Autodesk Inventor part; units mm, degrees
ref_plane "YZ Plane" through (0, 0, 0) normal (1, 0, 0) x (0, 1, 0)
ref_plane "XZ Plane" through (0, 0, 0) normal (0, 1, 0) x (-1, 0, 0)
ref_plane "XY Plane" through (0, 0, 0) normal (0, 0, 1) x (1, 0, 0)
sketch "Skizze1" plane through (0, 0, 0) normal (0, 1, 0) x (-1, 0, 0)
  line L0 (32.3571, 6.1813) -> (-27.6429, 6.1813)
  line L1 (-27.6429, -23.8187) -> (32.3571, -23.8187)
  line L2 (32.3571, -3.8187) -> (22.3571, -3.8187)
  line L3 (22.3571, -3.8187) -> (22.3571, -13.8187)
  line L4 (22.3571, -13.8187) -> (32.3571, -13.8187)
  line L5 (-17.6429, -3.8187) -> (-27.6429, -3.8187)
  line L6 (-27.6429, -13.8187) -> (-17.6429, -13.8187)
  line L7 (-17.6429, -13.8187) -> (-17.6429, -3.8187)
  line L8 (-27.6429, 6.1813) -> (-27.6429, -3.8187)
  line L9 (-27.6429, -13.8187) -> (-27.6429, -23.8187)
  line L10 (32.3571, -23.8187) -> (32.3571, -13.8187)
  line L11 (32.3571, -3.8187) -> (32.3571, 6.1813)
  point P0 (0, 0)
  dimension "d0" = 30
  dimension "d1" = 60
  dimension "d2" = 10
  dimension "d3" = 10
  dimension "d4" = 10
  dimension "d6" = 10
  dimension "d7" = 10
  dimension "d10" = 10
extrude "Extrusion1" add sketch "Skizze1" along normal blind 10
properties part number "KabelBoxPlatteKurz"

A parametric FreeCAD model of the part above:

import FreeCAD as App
import Part
import Sketcher

V = App.Vector

doc = App.newDocument("Part")
body = doc.addObject("PartDesign::Body", "Body")

sketch1 = body.newObject("Sketcher::SketchObject", "Sketch")
sketch1.AttachmentSupport = (doc.getObject("XZ_Plane"), [""])
sketch1.MapMode = "FlatFace"
sketch1.addGeometry(Part.LineSegment(V(-32, -4, 0), V(-32, 6, 0)), False)
sketch1.addGeometry(Part.LineSegment(V(-32, 6, 0), V(28, 6, 0)), False)
sketch1.addGeometry(Part.LineSegment(V(28, 6, 0), V(28, -4, 0)), False)
sketch1.addGeometry(Part.LineSegment(V(28, -4, 0), V(18, -4, 0)), False)
sketch1.addGeometry(Part.LineSegment(V(18, -4, 0), V(18, -14, 0)), False)
sketch1.addGeometry(Part.LineSegment(V(18, -14, 0), V(28, -14, 0)), False)
sketch1.addGeometry(Part.LineSegment(V(28, -14, 0), V(28, -24, 0)), False)
sketch1.addGeometry(Part.LineSegment(V(28, -24, 0), V(-32, -24, 0)), False)
sketch1.addGeometry(Part.LineSegment(V(-32, -24, 0), V(-32, -14, 0)), False)
sketch1.addGeometry(Part.LineSegment(V(-32, -14, 0), V(-22, -14, 0)), False)
sketch1.addGeometry(Part.LineSegment(V(-22, -14, 0), V(-22, -4, 0)), False)
sketch1.addGeometry(Part.LineSegment(V(-22, -4, 0), V(-32, -4, 0)), False)
sketch1.addConstraint(Sketcher.Constraint("Coincident", 0, 2, 1, 1))
sketch1.addConstraint(Sketcher.Constraint("Coincident", 1, 2, 2, 1))
sketch1.addConstraint(Sketcher.Constraint("Coincident", 2, 2, 3, 1))
sketch1.addConstraint(Sketcher.Constraint("Coincident", 3, 2, 4, 1))
sketch1.addConstraint(Sketcher.Constraint("Coincident", 4, 2, 5, 1))
sketch1.addConstraint(Sketcher.Constraint("Coincident", 5, 2, 6, 1))
sketch1.addConstraint(Sketcher.Constraint("Coincident", 6, 2, 7, 1))
sketch1.addConstraint(Sketcher.Constraint("Coincident", 7, 2, 8, 1))
sketch1.addConstraint(Sketcher.Constraint("Coincident", 8, 2, 9, 1))
sketch1.addConstraint(Sketcher.Constraint("Coincident", 9, 2, 10, 1))
sketch1.addConstraint(Sketcher.Constraint("Coincident", 10, 2, 11, 1))
sketch1.addConstraint(Sketcher.Constraint("Coincident", 11, 2, 0, 1))
sketch1.addConstraint(Sketcher.Constraint("Vertical", 0))
sketch1.addConstraint(Sketcher.Constraint("Horizontal", 1))
sketch1.addConstraint(Sketcher.Constraint("Vertical", 2))
sketch1.addConstraint(Sketcher.Constraint("Horizontal", 3))
sketch1.addConstraint(Sketcher.Constraint("Vertical", 4))
sketch1.addConstraint(Sketcher.Constraint("Horizontal", 5))
sketch1.addConstraint(Sketcher.Constraint("Vertical", 6))
sketch1.addConstraint(Sketcher.Constraint("Horizontal", 7))
sketch1.addConstraint(Sketcher.Constraint("Vertical", 8))
sketch1.addConstraint(Sketcher.Constraint("Horizontal", 9))
sketch1.addConstraint(Sketcher.Constraint("Vertical", 10))
sketch1.addConstraint(Sketcher.Constraint("Horizontal", 11))
sketch1.addConstraint(Sketcher.Constraint("Horizontal", 5, 2, 8, 2))
sketch1.addConstraint(Sketcher.Constraint("Horizontal", 3, 2, 10, 2))
sketch1.addConstraint(Sketcher.Constraint("Vertical", 2, 2, 5, 2))
sketch1.addConstraint(Sketcher.Constraint("Vertical", 0, 2, 7, 2))
sketch1.addConstraint(Sketcher.Constraint("Equal", 5, 9))
sketch1.addConstraint(Sketcher.Constraint("Equal", 11, 0))
sketch1.addConstraint(Sketcher.Constraint("Equal", 2, 4))
sketch1.addConstraint(Sketcher.Constraint("Equal", 4, 6))
sketch1.addConstraint(Sketcher.Constraint("DistanceX", 1, 1, 1, 2, 60.0))
sketch1.addConstraint(Sketcher.Constraint("DistanceX", 3, 2, 3, 1, 10.0))
sketch1.addConstraint(Sketcher.Constraint("DistanceX", 0, 2, -1, 1, 32.357))
sketch1.addConstraint(Sketcher.Constraint("DistanceY", -1, 1, 0, 2, 6.1813))
pad1 = body.newObject("PartDesign::Pad", "Pad")
pad1.Profile = sketch1
pad1.Length = 10
pad1.Reversed = True

doc.recompute()
